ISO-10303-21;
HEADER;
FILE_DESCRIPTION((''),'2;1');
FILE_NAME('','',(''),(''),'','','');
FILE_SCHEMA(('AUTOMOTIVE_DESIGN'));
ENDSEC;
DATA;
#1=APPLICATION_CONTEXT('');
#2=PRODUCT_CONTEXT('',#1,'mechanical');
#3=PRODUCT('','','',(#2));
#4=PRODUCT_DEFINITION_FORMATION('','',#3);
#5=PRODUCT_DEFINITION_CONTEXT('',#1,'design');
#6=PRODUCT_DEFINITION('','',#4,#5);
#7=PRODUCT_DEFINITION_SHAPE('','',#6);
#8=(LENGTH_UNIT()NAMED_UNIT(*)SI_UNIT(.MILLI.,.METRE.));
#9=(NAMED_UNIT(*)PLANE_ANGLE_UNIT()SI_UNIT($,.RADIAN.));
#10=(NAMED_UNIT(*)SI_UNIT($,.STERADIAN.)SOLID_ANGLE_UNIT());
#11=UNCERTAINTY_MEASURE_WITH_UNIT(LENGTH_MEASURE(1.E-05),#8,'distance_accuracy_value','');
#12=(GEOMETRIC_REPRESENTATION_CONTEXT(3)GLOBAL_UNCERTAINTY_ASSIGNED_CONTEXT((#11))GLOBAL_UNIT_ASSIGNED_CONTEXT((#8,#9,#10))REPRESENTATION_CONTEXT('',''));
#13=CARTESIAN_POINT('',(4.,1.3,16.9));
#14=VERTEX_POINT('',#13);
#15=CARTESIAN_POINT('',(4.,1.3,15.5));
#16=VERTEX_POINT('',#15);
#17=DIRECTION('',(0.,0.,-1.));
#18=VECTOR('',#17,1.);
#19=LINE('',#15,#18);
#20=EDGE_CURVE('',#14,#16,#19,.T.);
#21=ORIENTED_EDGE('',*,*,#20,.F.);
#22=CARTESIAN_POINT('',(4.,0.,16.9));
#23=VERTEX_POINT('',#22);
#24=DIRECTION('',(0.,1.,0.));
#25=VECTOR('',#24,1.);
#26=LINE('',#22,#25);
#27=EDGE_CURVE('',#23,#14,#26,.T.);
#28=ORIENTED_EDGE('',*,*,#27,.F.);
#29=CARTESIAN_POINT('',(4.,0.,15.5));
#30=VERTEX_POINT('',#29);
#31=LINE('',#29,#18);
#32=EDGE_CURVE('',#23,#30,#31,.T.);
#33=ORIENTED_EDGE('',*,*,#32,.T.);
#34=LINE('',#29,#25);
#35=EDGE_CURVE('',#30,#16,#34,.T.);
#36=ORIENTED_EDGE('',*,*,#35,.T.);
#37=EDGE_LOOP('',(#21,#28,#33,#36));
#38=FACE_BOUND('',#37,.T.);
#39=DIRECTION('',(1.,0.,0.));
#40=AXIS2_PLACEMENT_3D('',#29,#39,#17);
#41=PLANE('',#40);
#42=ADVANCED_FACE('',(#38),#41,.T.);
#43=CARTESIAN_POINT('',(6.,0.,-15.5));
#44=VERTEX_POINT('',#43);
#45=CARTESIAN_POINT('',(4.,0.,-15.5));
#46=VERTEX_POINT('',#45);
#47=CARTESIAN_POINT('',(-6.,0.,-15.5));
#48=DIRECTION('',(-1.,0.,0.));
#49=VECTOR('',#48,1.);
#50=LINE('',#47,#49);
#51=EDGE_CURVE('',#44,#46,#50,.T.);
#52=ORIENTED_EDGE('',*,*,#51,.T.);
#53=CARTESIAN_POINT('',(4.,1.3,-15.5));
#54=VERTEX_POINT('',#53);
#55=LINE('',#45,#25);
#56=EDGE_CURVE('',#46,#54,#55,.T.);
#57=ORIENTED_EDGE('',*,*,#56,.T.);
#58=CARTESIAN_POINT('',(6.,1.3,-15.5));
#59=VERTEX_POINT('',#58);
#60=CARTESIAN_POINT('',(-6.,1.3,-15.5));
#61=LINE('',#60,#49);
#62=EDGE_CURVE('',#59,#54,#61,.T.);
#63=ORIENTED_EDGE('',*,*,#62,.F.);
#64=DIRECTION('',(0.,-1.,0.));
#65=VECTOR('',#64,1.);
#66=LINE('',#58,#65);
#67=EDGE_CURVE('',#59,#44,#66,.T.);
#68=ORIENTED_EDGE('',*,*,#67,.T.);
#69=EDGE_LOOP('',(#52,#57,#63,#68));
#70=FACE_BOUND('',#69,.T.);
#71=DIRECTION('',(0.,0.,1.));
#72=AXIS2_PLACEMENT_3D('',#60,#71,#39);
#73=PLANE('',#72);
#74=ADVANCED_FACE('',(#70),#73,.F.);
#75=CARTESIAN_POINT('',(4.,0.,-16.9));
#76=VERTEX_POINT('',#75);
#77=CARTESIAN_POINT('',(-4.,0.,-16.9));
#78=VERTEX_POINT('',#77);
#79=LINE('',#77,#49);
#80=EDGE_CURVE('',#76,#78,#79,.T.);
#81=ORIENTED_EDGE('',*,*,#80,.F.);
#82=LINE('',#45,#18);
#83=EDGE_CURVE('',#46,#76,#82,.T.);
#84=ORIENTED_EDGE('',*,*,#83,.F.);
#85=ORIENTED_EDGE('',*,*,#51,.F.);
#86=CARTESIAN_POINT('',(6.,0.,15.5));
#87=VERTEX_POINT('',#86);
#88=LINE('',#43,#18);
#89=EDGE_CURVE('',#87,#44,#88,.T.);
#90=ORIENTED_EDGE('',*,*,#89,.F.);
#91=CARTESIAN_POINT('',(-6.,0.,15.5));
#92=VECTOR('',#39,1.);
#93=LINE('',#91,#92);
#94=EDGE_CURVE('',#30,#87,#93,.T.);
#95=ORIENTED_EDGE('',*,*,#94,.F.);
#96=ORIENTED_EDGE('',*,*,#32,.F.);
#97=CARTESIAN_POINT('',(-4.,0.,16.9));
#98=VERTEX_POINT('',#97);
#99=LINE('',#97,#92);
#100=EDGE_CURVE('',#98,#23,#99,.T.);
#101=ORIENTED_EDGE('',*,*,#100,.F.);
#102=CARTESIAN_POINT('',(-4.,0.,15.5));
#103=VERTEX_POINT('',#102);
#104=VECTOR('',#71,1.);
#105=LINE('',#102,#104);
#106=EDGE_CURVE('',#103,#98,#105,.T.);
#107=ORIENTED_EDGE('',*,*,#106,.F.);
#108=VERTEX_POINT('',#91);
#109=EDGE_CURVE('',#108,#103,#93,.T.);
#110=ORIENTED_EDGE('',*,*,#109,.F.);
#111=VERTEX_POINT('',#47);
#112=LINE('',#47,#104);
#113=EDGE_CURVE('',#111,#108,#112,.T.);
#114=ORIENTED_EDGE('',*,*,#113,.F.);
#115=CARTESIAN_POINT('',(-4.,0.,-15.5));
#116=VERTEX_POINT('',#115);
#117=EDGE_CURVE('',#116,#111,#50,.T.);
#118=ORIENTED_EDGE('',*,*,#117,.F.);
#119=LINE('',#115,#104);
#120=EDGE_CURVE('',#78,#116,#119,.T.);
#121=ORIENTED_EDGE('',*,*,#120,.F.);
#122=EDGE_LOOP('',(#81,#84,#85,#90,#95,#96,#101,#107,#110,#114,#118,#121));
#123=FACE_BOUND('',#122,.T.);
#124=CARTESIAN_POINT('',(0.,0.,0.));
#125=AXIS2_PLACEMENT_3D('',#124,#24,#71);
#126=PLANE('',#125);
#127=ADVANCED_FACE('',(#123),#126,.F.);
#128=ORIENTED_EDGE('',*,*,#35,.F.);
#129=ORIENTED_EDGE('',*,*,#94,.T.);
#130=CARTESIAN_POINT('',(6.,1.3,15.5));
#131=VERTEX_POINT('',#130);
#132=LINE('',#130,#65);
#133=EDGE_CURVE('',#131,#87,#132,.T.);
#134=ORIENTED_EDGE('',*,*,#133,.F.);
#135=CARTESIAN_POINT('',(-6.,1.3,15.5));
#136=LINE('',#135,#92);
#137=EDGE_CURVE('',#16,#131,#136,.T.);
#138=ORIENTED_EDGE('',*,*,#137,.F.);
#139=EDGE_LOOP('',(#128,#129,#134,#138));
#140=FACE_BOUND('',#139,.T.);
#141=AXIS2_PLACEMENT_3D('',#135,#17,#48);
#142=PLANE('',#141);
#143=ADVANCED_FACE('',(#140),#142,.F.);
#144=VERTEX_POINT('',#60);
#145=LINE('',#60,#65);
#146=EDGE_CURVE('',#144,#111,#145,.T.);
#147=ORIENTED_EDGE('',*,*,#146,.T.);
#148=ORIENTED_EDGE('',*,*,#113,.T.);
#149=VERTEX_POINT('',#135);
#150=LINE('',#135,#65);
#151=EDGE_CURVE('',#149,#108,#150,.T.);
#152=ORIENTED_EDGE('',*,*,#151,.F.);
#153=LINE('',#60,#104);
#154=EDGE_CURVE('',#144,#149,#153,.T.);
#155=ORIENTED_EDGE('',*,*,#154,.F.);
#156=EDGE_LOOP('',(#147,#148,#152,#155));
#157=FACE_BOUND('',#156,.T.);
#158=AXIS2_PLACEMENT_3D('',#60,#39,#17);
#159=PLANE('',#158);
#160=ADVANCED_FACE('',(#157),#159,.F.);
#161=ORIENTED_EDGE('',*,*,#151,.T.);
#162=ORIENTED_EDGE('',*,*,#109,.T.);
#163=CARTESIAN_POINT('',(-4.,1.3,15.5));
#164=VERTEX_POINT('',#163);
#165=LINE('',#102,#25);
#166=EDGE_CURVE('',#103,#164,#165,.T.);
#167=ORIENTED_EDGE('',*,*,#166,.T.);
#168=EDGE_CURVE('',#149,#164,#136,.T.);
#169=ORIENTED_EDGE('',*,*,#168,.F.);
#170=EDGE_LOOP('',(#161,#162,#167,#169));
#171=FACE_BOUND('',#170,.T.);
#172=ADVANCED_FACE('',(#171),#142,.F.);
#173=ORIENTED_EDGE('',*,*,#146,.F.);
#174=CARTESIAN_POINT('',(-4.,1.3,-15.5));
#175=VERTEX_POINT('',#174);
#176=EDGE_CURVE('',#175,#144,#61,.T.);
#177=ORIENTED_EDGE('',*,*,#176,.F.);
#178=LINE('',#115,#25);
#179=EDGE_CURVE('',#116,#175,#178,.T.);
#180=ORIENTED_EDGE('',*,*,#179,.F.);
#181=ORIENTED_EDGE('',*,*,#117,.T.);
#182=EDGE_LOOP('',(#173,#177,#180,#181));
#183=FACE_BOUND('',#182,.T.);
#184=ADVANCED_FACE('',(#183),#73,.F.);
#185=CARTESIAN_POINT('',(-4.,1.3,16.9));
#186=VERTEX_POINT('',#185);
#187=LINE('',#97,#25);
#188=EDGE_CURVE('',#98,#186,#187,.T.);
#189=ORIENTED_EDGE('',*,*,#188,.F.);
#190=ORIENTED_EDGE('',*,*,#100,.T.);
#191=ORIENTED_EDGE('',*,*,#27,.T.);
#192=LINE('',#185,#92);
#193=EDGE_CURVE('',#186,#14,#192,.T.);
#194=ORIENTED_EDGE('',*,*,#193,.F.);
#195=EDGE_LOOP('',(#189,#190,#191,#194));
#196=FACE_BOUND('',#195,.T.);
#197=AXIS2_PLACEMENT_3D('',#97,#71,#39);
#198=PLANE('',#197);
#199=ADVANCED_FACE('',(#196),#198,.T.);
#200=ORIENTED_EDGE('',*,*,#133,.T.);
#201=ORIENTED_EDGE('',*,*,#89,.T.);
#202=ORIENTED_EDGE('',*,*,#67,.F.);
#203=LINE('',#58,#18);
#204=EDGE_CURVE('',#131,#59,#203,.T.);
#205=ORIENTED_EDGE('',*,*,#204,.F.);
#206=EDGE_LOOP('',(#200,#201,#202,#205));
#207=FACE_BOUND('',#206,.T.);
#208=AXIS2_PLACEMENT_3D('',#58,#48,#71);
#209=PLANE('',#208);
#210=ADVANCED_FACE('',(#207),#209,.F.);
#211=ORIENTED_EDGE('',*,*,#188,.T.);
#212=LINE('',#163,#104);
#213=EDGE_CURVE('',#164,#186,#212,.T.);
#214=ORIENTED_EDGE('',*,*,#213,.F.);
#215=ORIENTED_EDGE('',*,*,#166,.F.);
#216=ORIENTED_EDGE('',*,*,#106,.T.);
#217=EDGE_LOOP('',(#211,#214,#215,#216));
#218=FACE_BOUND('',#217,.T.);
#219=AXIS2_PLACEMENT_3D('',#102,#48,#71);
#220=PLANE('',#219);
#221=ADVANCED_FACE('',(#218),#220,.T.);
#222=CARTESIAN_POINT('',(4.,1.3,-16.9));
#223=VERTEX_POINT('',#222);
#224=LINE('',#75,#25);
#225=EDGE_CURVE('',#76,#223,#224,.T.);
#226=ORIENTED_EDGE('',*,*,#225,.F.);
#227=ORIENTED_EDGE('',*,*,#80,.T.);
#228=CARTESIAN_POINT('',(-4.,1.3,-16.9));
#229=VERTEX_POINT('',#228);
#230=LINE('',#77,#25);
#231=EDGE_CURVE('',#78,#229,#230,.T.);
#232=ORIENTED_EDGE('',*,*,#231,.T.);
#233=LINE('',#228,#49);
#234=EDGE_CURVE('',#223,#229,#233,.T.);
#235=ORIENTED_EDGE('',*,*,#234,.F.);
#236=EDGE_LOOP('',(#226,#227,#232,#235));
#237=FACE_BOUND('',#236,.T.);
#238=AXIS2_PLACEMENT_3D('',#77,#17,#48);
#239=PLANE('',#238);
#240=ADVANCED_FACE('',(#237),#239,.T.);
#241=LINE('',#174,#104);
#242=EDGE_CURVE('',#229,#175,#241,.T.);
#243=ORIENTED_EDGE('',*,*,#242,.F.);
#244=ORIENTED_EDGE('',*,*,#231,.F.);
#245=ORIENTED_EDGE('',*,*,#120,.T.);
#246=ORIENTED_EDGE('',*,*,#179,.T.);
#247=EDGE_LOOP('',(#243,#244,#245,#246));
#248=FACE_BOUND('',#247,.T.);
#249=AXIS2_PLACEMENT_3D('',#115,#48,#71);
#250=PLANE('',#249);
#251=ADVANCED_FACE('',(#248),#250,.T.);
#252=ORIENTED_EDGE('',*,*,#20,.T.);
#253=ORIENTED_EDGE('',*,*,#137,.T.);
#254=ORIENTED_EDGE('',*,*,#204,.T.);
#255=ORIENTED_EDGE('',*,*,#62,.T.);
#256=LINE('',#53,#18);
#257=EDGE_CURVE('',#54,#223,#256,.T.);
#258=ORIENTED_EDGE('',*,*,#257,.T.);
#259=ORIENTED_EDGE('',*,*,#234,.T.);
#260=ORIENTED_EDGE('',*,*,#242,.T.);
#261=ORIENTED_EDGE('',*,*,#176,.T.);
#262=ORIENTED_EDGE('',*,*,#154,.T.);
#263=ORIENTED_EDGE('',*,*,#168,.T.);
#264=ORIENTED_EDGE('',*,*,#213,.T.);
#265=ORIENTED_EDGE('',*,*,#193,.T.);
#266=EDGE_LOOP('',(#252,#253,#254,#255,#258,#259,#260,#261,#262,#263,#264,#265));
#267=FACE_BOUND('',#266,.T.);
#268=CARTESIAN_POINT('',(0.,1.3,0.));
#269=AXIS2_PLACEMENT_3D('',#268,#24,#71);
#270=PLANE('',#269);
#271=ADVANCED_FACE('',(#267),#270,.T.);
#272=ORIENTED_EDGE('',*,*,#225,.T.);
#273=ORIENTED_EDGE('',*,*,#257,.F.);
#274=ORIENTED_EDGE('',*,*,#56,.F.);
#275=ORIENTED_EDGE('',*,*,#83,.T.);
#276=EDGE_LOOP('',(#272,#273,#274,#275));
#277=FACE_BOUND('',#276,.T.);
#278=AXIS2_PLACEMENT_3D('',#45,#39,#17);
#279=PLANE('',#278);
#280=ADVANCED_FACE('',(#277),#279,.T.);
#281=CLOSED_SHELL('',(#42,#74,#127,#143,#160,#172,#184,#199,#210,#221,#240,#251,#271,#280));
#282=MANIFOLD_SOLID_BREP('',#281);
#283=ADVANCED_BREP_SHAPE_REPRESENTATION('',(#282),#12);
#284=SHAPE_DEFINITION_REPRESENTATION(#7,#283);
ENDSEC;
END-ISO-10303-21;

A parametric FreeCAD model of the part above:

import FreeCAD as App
import Part
import Sketcher


def add_polygon(sketch, points):
    """Adds a closed chain of lines whose ends are joined by coincident constraints."""
    first, n = sketch.GeometryCount, len(points)
    for a, b in zip(points, points[1:] + points[:1]):
        sketch.addGeometry(Part.LineSegment(App.Vector(*a, 0), App.Vector(*b, 0)), False)
    for i in range(n):
        sketch.addConstraint(Sketcher.Constraint("Coincident", first + i, 2, first + (i + 1) % n, 1))

doc = App.newDocument("Part")
body = doc.addObject("PartDesign::Body", "Body")

# Sketch on XZ plane
sketch1 = doc.addObject("Sketcher::SketchObject", "Sketch")
body.addObject(sketch1)
sketch1.AttachmentSupport = (doc.XZ_Plane, [""])
sketch1.MapMode = "FlatFace"
add_polygon(sketch1, [(-6, -15.5), (-6, 15.5), (6, 15.5), (6, -15.5)])  # lines 0-3
sketch1.addConstraint([
    Sketcher.Constraint("Vertical", 0),
    Sketcher.Constraint("Horizontal", 1),
    Sketcher.Constraint("Vertical", 2),
    Sketcher.Constraint("Horizontal", 3),
    Sketcher.Constraint("Symmetric", 0, 2, 2, 2, -1, 1),
    Sketcher.Constraint("DistanceX", 1, 1, 1, 2, 12.0),
    Sketcher.Constraint("DistanceY", 0, 1, 0, 2, 31.0),
])
pad1 = doc.addObject("PartDesign::Pad", "Pad")
body.addObject(pad1)
pad1.Profile = sketch1
pad1.Length = 1.3
pad1.Reversed = True

# Sketch on XZ plane
sketch2 = doc.addObject("Sketcher::SketchObject", "Sketch001")
body.addObject(sketch2)
sketch2.AttachmentSupport = (doc.XZ_Plane, [""])
sketch2.MapMode = "FlatFace"
sketch2.AttachmentOffset = App.Placement(App.Vector(0, 0, -1.3), App.Rotation())
add_polygon(sketch2, [(-4, -16.9), (-4, -15.5), (4, -15.5), (4, -16.9)])  # lines 0-3
add_polygon(sketch2, [(-4, 15.5), (-4, 16.9), (4, 16.9), (4, 15.5)])  # lines 4-7
sketch2.addConstraint([
    Sketcher.Constraint("Vertical", 0),
    Sketcher.Constraint("Horizontal", 1),
    Sketcher.Constraint("Vertical", 2),
    Sketcher.Constraint("Horizontal", 3),
    Sketcher.Constraint("Vertical", 4),
    Sketcher.Constraint("Horizontal", 5),
    Sketcher.Constraint("Vertical", 6),
    Sketcher.Constraint("Horizontal", 7),
    Sketcher.Constraint("Symmetric", 2, 2, 4, 2, -1, 1),
    Sketcher.Constraint("Symmetric", 0, 2, 6, 2, -1, 1),
    Sketcher.Constraint("Vertical", 3, 2, 4, 2),
    Sketcher.Constraint("DistanceX", 1, 1, 1, 2, 8.0),
    Sketcher.Constraint("DistanceY", 0, 1, 0, 2, 1.4),
    Sketcher.Constraint("DistanceY", 1, 2, 6, 2, 31.0),
])
pad2 = doc.addObject("PartDesign::Pad", "Pad001")
body.addObject(pad2)
pad2.Profile = sketch2
pad2.Length = 1.3

doc.recompute()
